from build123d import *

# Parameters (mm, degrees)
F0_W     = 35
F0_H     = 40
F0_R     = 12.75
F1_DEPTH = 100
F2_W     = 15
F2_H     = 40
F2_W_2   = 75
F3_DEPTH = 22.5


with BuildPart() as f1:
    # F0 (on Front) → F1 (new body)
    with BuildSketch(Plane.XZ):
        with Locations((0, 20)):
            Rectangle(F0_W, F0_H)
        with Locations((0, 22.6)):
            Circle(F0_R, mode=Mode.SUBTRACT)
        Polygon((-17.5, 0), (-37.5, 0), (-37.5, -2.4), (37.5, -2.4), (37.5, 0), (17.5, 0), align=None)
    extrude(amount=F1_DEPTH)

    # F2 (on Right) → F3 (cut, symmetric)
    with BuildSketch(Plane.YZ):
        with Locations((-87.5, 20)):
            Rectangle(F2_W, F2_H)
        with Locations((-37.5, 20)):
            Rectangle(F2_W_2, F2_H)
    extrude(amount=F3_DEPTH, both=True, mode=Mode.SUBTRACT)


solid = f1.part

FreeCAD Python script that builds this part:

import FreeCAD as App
import Part
import Sketcher
from FreeCAD import Vector


def add_polygon(sketch, points):
    """Adds a closed chain of lines whose ends are joined by coincident constraints."""
    first, n = sketch.GeometryCount, len(points)
    for a, b in zip(points, points[1:] + points[:1]):
        sketch.addGeometry(Part.LineSegment(App.Vector(*a, 0), App.Vector(*b, 0)), False)
    for i in range(n):
        sketch.addConstraint(Sketcher.Constraint("Coincident", first + i, 2, first + (i + 1) % n, 1))

doc = App.newDocument("Part")
params = doc.addObject("Spreadsheet::Sheet", "Params")
for row, (alias, value) in enumerate([
    ("sketch1_diameter", "25.5 mm"),
    ("sketch1_width", "20 mm"),
    ("sketch1_width2", "75 mm"),
    ("sketch1_height", "40 mm"),
    ("sketch1_height2", "2.4 mm"),
    ("pad1_length", "100 mm"),
    ("sketch2_width", "15 mm"),
    ("sketch2_width2", "75 mm"),
    ("sketch2_height", "40 mm"),
    ("pocket1_length", "45 mm"),
], start=1):
    params.set(f"A{row}", alias)
    params.set(f"B{row}", "=" + value)
    params.setAlias(f"B{row}", alias)

body = doc.addObject("PartDesign::Body", "Body")

# Sketch on XZ plane
sketch1 = body.newObject("Sketcher::SketchObject", "Sketch")
sketch1.AttachmentSupport = (doc.getObject("XZ_Plane"), [""])
sketch1.MapMode = "FlatFace"
add_polygon(sketch1, [(-17.5, 40), (-17.5, 0), (-37.5, 0), (-37.5, -2.4), (37.5, -2.4), (37.5, 0), (17.5, 0), (17.5, 40)])  # lines 0-7
sketch1.addGeometry(Part.Circle(Vector(0, 22.6, 0), Vector(0, 0, 1), 12.8), False)  # 8
sketch1.addConstraint(Sketcher.Constraint("Vertical", 0))
sketch1.addConstraint(Sketcher.Constraint("Horizontal", 1))
sketch1.addConstraint(Sketcher.Constraint("Vertical", 2))
sketch1.addConstraint(Sketcher.Constraint("Horizontal", 3))
sketch1.addConstraint(Sketcher.Constraint("Vertical", 4))
sketch1.addConstraint(Sketcher.Constraint("Horizontal", 5))
sketch1.addConstraint(Sketcher.Constraint("Vertical", 6))
sketch1.addConstraint(Sketcher.Constraint("Horizontal", 7))
sketch1.addConstraint(Sketcher.Constraint("Symmetric", 1, 2, 4, 2, -1, 1))
sketch1.addConstraint(Sketcher.Constraint("Symmetric", 0, 2, 5, 2, -2))
sketch1.addConstraint(Sketcher.Constraint("PointOnObject", 8, 3, -2))
sketch1.addConstraint(Sketcher.Constraint("Diameter", 8, 25.5))
sketch1.addConstraint(Sketcher.Constraint("DistanceX", 1, 2, 1, 1, 20.0))
sketch1.addConstraint(Sketcher.Constraint("DistanceX", 3, 1, 3, 2, 75.0))
sketch1.addConstraint(Sketcher.Constraint("DistanceY", 0, 2, 0, 1, 40.0))
sketch1.addConstraint(Sketcher.Constraint("DistanceY", 2, 2, 2, 1, 2.4))
sketch1.addConstraint(Sketcher.Constraint("DistanceY", 2, 2, 8, 3, 25.0))
sketch1.setExpression("Constraints[19]", "Params.sketch1_diameter")
sketch1.setExpression("Constraints[20]", "Params.sketch1_width")
sketch1.setExpression("Constraints[21]", "Params.sketch1_width2")
sketch1.setExpression("Constraints[22]", "Params.sketch1_height")
sketch1.setExpression("Constraints[23]", "Params.sketch1_height2")
pad1 = body.newObject("PartDesign::Pad", "Pad")
pad1.Profile = sketch1
pad1.setExpression("Length", "Params.pad1_length")

# Sketch on YZ plane
sketch2 = body.newObject("Sketcher::SketchObject", "Sketch001")
sketch2.AttachmentSupport = (doc.getObject("YZ_Plane"), [""])
sketch2.MapMode = "FlatFace"
add_polygon(sketch2, [(-95, 40), (-95, 0), (-80, 0), (-80, 40)])  # lines 0-3
add_polygon(sketch2, [(-75, 40), (-75, 0), (0, 0), (0, 40)])  # lines 4-7
sketch2.addConstraint(Sketcher.Constraint("Vertical", 0))
sketch2.addConstraint(Sketcher.Constraint("Horizontal", 1))
sketch2.addConstraint(Sketcher.Constraint("Vertical", 2))
sketch2.addConstraint(Sketcher.Constraint("Horizontal", 3))
sketch2.addConstraint(Sketcher.Constraint("Vertical", 4))
sketch2.addConstraint(Sketcher.Constraint("Horizontal", 5))
sketch2.addConstraint(Sketcher.Constraint("Vertical", 6))
sketch2.addConstraint(Sketcher.Constraint("Horizontal", 7))
sketch2.addConstraint(Sketcher.Constraint("Coincident", 5, 2, -1, 1))
sketch2.addConstraint(Sketcher.Constraint("PointOnObject", 0, 2, -1))
sketch2.addConstraint(Sketcher.Constraint("Horizontal", 3, 2, 6, 2))
sketch2.addConstraint(Sketcher.Constraint("DistanceX", 1, 1, 1, 2, 15.0))
sketch2.addConstraint(Sketcher.Constraint("DistanceX", 5, 1, 5, 2, 75.0))
sketch2.addConstraint(Sketcher.Constraint("DistanceY", 0, 2, 0, 1, 40.0))
sketch2.addConstraint(Sketcher.Constraint("DistanceX", 0, 2, -1, 1, 95.0))
sketch2.setExpression("Constraints[19]", "Params.sketch2_width")
sketch2.setExpression("Constraints[20]", "Params.sketch2_width2")
sketch2.setExpression("Constraints[21]", "Params.sketch2_height")
pocket1 = body.newObject("PartDesign::Pocket", "Pocket")
pocket1.Profile = sketch2
pocket1.setExpression("Length", "Params.pocket1_length")
pocket1.Midplane = True

doc.recompute()
